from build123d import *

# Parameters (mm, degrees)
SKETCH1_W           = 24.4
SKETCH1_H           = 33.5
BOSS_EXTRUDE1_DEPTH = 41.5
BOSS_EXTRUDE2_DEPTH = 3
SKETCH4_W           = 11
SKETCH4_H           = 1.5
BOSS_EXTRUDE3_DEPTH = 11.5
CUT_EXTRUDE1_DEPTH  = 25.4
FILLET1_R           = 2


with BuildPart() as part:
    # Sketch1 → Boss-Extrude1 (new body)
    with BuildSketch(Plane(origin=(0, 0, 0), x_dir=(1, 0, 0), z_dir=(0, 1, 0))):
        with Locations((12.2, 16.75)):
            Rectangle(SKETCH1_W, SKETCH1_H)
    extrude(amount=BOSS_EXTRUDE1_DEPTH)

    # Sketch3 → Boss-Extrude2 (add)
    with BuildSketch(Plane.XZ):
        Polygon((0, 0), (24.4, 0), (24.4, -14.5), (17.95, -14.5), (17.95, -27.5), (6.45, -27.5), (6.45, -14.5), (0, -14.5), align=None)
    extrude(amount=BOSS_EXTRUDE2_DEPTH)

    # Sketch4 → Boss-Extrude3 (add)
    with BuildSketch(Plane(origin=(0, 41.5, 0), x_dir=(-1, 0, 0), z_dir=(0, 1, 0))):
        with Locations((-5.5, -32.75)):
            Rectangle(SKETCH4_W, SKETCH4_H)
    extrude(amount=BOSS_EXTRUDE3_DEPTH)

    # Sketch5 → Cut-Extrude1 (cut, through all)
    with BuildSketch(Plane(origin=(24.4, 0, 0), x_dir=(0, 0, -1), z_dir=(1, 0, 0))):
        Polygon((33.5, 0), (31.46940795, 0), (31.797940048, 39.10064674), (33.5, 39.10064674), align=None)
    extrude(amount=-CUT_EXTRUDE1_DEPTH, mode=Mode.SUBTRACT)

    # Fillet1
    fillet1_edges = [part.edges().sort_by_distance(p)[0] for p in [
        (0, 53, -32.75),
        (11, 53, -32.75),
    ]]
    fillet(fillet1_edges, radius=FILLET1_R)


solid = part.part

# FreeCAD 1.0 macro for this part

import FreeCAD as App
import Part
import Sketcher

V = App.Vector
Q = App.Units.Quantity


def edges_at(feature, points):
    """Names of the edges that pass closest to the given points."""
    edges = feature.Shape.Edges
    near = lambda p: min(range(len(edges)), key=lambda i: edges[i].distToShape(Part.Vertex(*p))[0])
    return sorted({f"Edge{near(p) + 1}" for p in points})

doc = App.newDocument("Part")
body = doc.addObject("PartDesign::Body", "Body")

# Sketch on XZ plane
sketch1 = body.newObject("Sketcher::SketchObject", "Sketch")
sketch1.AttachmentSupport = (doc.getObject("XZ_Plane"), [""])
sketch1.MapMode = "FlatFace"
sketch1.addGeometry(Part.LineSegment(V(0, -34, 0), V(0, 0, 0)), False)
sketch1.addGeometry(Part.LineSegment(V(0, 0, 0), V(24, 0, 0)), False)
sketch1.addGeometry(Part.LineSegment(V(24, 0, 0), V(24, -34, 0)), False)
sketch1.addGeometry(Part.LineSegment(V(24, -34, 0), V(0, -34, 0)), False)
sketch1.addConstraint(Sketcher.Constraint("Coincident", 0, 2, 1, 1))
sketch1.addConstraint(Sketcher.Constraint("Coincident", 1, 2, 2, 1))
sketch1.addConstraint(Sketcher.Constraint("Coincident", 2, 2, 3, 1))
sketch1.addConstraint(Sketcher.Constraint("Coincident", 3, 2, 0, 1))
sketch1.addConstraint(Sketcher.Constraint("Vertical", 0))
sketch1.addConstraint(Sketcher.Constraint("Horizontal", 1))
sketch1.addConstraint(Sketcher.Constraint("Vertical", 2))
sketch1.addConstraint(Sketcher.Constraint("Horizontal", 3))
sketch1.addConstraint(Sketcher.Constraint("Coincident", 0, 2, -1, 1))
sketch1.addConstraint(Sketcher.Constraint("DistanceX", 1, 1, 1, 2, Q("24.4 mm")))
sketch1.addConstraint(Sketcher.Constraint("DistanceY", 0, 1, 0, 2, Q("33.5 mm")))
pad1 = body.newObject("PartDesign::Pad", "Pad")
pad1.Profile = sketch1
pad1.Length = 41.5
pad1.Reversed = True

# Sketch on XZ plane
sketch2 = body.newObject("Sketcher::SketchObject", "Sketch001")
sketch2.AttachmentSupport = (doc.getObject("XZ_Plane"), [""])
sketch2.MapMode = "FlatFace"
sketch2.addGeometry(Part.LineSegment(V(24, 0, 0), V(0, 0, 0)), False)
sketch2.addGeometry(Part.LineSegment(V(0, 0, 0), V(0, -14, 0)), False)
sketch2.addGeometry(Part.LineSegment(V(0, -14, 0), V(6, -14, 0)), False)
sketch2.addGeometry(Part.LineSegment(V(6, -14, 0), V(6, -28, 0)), False)
sketch2.addGeometry(Part.LineSegment(V(6, -28, 0), V(18, -28, 0)), False)
sketch2.addGeometry(Part.LineSegment(V(18, -28, 0), V(18, -14, 0)), False)
sketch2.addGeometry(Part.LineSegment(V(18, -14, 0), V(24, -14, 0)), False)
sketch2.addGeometry(Part.LineSegment(V(24, -14, 0), V(24, 0, 0)), False)
sketch2.addConstraint(Sketcher.Constraint("Coincident", 0, 2, 1, 1))
sketch2.addConstraint(Sketcher.Constraint("Coincident", 1, 2, 2, 1))
sketch2.addConstraint(Sketcher.Constraint("Coincident", 2, 2, 3, 1))
sketch2.addConstraint(Sketcher.Constraint("Coincident", 3, 2, 4, 1))
sketch2.addConstraint(Sketcher.Constraint("Coincident", 4, 2, 5, 1))
sketch2.addConstraint(Sketcher.Constraint("Coincident", 5, 2, 6, 1))
sketch2.addConstraint(Sketcher.Constraint("Coincident", 6, 2, 7, 1))
sketch2.addConstraint(Sketcher.Constraint("Coincident", 7, 2, 0, 1))
sketch2.addConstraint(Sketcher.Constraint("Horizontal", 0))
sketch2.addConstraint(Sketcher.Constraint("Vertical", 1))
sketch2.addConstraint(Sketcher.Constraint("Horizontal", 2))
sketch2.addConstraint(Sketcher.Constraint("Vertical", 3))
sketch2.addConstraint(Sketcher.Constraint("Horizontal", 4))
sketch2.addConstraint(Sketcher.Constraint("Vertical", 5))
sketch2.addConstraint(Sketcher.Constraint("Horizontal", 6))
sketch2.addConstraint(Sketcher.Constraint("Vertical", 7))
sketch2.addConstraint(Sketcher.Constraint("Coincident", 0, 2, -1, 1))
sketch2.addConstraint(Sketcher.Constraint("Horizontal", 2, 2, 5, 2))
sketch2.addConstraint(Sketcher.Constraint("Equal", 2, 6))
sketch2.addConstraint(Sketcher.Constraint("DistanceY", 3, 2, 3, 1, Q("13 mm")))
sketch2.addConstraint(Sketcher.Constraint("DistanceX", 0, 2, 0, 1, Q("24.4 mm")))
sketch2.addConstraint(Sketcher.Constraint("DistanceX", 4, 1, 4, 2, Q("11.5 mm")))
sketch2.addConstraint(Sketcher.Constraint("DistanceY", 1, 2, 1, 1, Q("14.5 mm")))
pad2 = body.newObject("PartDesign::Pad", "Pad001")
pad2.Profile = sketch2
pad2.Length = 3

# Sketch on XZ plane
sketch3 = body.newObject("Sketcher::SketchObject", "Sketch002")
sketch3.AttachmentSupport = (doc.getObject("XZ_Plane"), [""])
sketch3.MapMode = "FlatFace"
sketch3.AttachmentOffset = App.Placement(V(0, 0, -41.5), App.Rotation())
sketch3.addGeometry(Part.LineSegment(V(11, -32, 0), V(11, -33.5, 0)), False)
sketch3.addGeometry(Part.LineSegment(V(11, -33.5, 0), V(0, -33.5, 0)), False)
sketch3.addGeometry(Part.LineSegment(V(0, -33.5, 0), V(0, -32, 0)), False)
sketch3.addGeometry(Part.LineSegment(V(0, -32, 0), V(11, -32, 0)), False)
sketch3.addConstraint(Sketcher.Constraint("Coincident", 0, 2, 1, 1))
sketch3.addConstraint(Sketcher.Constraint("Coincident", 1, 2, 2, 1))
sketch3.addConstraint(Sketcher.Constraint("Coincident", 2, 2, 3, 1))
sketch3.addConstraint(Sketcher.Constraint("Coincident", 3, 2, 0, 1))
sketch3.addConstraint(Sketcher.Constraint("Vertical", 0))
sketch3.addConstraint(Sketcher.Constraint("Horizontal", 1))
sketch3.addConstraint(Sketcher.Constraint("Vertical", 2))
sketch3.addConstraint(Sketcher.Constraint("Horizontal", 3))
sketch3.addConstraint(Sketcher.Constraint("PointOnObject", 1, 2, -2))
sketch3.addConstraint(Sketcher.Constraint("DistanceX", 1, 2, 1, 1, Q("11 mm")))
sketch3.addConstraint(Sketcher.Constraint("DistanceY", 0, 2, 0, 1, Q("1.5 mm")))
sketch3.addConstraint(Sketcher.Constraint("DistanceY", 2, 2, -1, 1, Q("32 mm")))
pad3 = body.newObject("PartDesign::Pad", "Pad002")
pad3.Profile = sketch3
pad3.Length = 11.5
pad3.Reversed = True

# Sketch on YZ plane
sketch4 = body.newObject("Sketcher::SketchObject", "Sketch003")
sketch4.AttachmentSupport = (doc.getObject("YZ_Plane"), [""])
sketch4.MapMode = "FlatFace"
sketch4.AttachmentOffset = App.Placement(V(0, 0, 24.4), App.Rotation())
sketch4.addGeometry(Part.LineSegment(V(0, -31.5, 0), V(0, -33.5, 0)), False)
sketch4.addGeometry(Part.LineSegment(V(0, -33.5, 0), V(39.1, -33.5, 0)), False)
sketch4.addGeometry(Part.LineSegment(V(39.1, -33.5, 0), V(39.1, -31.8, 0)), False)
sketch4.addGeometry(Part.LineSegment(V(39.1, -31.8, 0), V(0, -31.5, 0)), False)
sketch4.addConstraint(Sketcher.Constraint("Coincident", 0, 2, 1, 1))
sketch4.addConstraint(Sketcher.Constraint("Coincident", 1, 2, 2, 1))
sketch4.addConstraint(Sketcher.Constraint("Coincident", 2, 2, 3, 1))
sketch4.addConstraint(Sketcher.Constraint("Coincident", 3, 2, 0, 1))
sketch4.addConstraint(Sketcher.Constraint("Vertical", 0))
sketch4.addConstraint(Sketcher.Constraint("Horizontal", 1))
sketch4.addConstraint(Sketcher.Constraint("Vertical", 2))
sketch4.addConstraint(Sketcher.Constraint("PointOnObject", 0, 2, -2))
sketch4.addConstraint(Sketcher.Constraint("DistanceY", 0, 2, -1, 1, Q("33.5 mm")))
sketch4.addConstraint(Sketcher.Constraint("DistanceY", 2, 1, 2, 2, Q("1.70206 mm")))
sketch4.addConstraint(Sketcher.Constraint("DistanceX", 1, 1, 1, 2, Q("39.100647 mm")))
sketch4.addConstraint(Sketcher.Constraint("DistanceY", 0, 2, 0, 1, Q("2.030592 mm")))
pocket1 = body.newObject("PartDesign::Pocket", "Pocket")
pocket1.Profile = sketch4
pocket1.Type = "ThroughAll"
doc.recompute()

fillet = body.newObject("PartDesign::Fillet", "Fillet")
fillet.Base = (pocket1, edges_at(pocket1, [(0, 53, -32.75), (11, 53, -32.75)]))
fillet.Radius = 2

doc.recompute()
